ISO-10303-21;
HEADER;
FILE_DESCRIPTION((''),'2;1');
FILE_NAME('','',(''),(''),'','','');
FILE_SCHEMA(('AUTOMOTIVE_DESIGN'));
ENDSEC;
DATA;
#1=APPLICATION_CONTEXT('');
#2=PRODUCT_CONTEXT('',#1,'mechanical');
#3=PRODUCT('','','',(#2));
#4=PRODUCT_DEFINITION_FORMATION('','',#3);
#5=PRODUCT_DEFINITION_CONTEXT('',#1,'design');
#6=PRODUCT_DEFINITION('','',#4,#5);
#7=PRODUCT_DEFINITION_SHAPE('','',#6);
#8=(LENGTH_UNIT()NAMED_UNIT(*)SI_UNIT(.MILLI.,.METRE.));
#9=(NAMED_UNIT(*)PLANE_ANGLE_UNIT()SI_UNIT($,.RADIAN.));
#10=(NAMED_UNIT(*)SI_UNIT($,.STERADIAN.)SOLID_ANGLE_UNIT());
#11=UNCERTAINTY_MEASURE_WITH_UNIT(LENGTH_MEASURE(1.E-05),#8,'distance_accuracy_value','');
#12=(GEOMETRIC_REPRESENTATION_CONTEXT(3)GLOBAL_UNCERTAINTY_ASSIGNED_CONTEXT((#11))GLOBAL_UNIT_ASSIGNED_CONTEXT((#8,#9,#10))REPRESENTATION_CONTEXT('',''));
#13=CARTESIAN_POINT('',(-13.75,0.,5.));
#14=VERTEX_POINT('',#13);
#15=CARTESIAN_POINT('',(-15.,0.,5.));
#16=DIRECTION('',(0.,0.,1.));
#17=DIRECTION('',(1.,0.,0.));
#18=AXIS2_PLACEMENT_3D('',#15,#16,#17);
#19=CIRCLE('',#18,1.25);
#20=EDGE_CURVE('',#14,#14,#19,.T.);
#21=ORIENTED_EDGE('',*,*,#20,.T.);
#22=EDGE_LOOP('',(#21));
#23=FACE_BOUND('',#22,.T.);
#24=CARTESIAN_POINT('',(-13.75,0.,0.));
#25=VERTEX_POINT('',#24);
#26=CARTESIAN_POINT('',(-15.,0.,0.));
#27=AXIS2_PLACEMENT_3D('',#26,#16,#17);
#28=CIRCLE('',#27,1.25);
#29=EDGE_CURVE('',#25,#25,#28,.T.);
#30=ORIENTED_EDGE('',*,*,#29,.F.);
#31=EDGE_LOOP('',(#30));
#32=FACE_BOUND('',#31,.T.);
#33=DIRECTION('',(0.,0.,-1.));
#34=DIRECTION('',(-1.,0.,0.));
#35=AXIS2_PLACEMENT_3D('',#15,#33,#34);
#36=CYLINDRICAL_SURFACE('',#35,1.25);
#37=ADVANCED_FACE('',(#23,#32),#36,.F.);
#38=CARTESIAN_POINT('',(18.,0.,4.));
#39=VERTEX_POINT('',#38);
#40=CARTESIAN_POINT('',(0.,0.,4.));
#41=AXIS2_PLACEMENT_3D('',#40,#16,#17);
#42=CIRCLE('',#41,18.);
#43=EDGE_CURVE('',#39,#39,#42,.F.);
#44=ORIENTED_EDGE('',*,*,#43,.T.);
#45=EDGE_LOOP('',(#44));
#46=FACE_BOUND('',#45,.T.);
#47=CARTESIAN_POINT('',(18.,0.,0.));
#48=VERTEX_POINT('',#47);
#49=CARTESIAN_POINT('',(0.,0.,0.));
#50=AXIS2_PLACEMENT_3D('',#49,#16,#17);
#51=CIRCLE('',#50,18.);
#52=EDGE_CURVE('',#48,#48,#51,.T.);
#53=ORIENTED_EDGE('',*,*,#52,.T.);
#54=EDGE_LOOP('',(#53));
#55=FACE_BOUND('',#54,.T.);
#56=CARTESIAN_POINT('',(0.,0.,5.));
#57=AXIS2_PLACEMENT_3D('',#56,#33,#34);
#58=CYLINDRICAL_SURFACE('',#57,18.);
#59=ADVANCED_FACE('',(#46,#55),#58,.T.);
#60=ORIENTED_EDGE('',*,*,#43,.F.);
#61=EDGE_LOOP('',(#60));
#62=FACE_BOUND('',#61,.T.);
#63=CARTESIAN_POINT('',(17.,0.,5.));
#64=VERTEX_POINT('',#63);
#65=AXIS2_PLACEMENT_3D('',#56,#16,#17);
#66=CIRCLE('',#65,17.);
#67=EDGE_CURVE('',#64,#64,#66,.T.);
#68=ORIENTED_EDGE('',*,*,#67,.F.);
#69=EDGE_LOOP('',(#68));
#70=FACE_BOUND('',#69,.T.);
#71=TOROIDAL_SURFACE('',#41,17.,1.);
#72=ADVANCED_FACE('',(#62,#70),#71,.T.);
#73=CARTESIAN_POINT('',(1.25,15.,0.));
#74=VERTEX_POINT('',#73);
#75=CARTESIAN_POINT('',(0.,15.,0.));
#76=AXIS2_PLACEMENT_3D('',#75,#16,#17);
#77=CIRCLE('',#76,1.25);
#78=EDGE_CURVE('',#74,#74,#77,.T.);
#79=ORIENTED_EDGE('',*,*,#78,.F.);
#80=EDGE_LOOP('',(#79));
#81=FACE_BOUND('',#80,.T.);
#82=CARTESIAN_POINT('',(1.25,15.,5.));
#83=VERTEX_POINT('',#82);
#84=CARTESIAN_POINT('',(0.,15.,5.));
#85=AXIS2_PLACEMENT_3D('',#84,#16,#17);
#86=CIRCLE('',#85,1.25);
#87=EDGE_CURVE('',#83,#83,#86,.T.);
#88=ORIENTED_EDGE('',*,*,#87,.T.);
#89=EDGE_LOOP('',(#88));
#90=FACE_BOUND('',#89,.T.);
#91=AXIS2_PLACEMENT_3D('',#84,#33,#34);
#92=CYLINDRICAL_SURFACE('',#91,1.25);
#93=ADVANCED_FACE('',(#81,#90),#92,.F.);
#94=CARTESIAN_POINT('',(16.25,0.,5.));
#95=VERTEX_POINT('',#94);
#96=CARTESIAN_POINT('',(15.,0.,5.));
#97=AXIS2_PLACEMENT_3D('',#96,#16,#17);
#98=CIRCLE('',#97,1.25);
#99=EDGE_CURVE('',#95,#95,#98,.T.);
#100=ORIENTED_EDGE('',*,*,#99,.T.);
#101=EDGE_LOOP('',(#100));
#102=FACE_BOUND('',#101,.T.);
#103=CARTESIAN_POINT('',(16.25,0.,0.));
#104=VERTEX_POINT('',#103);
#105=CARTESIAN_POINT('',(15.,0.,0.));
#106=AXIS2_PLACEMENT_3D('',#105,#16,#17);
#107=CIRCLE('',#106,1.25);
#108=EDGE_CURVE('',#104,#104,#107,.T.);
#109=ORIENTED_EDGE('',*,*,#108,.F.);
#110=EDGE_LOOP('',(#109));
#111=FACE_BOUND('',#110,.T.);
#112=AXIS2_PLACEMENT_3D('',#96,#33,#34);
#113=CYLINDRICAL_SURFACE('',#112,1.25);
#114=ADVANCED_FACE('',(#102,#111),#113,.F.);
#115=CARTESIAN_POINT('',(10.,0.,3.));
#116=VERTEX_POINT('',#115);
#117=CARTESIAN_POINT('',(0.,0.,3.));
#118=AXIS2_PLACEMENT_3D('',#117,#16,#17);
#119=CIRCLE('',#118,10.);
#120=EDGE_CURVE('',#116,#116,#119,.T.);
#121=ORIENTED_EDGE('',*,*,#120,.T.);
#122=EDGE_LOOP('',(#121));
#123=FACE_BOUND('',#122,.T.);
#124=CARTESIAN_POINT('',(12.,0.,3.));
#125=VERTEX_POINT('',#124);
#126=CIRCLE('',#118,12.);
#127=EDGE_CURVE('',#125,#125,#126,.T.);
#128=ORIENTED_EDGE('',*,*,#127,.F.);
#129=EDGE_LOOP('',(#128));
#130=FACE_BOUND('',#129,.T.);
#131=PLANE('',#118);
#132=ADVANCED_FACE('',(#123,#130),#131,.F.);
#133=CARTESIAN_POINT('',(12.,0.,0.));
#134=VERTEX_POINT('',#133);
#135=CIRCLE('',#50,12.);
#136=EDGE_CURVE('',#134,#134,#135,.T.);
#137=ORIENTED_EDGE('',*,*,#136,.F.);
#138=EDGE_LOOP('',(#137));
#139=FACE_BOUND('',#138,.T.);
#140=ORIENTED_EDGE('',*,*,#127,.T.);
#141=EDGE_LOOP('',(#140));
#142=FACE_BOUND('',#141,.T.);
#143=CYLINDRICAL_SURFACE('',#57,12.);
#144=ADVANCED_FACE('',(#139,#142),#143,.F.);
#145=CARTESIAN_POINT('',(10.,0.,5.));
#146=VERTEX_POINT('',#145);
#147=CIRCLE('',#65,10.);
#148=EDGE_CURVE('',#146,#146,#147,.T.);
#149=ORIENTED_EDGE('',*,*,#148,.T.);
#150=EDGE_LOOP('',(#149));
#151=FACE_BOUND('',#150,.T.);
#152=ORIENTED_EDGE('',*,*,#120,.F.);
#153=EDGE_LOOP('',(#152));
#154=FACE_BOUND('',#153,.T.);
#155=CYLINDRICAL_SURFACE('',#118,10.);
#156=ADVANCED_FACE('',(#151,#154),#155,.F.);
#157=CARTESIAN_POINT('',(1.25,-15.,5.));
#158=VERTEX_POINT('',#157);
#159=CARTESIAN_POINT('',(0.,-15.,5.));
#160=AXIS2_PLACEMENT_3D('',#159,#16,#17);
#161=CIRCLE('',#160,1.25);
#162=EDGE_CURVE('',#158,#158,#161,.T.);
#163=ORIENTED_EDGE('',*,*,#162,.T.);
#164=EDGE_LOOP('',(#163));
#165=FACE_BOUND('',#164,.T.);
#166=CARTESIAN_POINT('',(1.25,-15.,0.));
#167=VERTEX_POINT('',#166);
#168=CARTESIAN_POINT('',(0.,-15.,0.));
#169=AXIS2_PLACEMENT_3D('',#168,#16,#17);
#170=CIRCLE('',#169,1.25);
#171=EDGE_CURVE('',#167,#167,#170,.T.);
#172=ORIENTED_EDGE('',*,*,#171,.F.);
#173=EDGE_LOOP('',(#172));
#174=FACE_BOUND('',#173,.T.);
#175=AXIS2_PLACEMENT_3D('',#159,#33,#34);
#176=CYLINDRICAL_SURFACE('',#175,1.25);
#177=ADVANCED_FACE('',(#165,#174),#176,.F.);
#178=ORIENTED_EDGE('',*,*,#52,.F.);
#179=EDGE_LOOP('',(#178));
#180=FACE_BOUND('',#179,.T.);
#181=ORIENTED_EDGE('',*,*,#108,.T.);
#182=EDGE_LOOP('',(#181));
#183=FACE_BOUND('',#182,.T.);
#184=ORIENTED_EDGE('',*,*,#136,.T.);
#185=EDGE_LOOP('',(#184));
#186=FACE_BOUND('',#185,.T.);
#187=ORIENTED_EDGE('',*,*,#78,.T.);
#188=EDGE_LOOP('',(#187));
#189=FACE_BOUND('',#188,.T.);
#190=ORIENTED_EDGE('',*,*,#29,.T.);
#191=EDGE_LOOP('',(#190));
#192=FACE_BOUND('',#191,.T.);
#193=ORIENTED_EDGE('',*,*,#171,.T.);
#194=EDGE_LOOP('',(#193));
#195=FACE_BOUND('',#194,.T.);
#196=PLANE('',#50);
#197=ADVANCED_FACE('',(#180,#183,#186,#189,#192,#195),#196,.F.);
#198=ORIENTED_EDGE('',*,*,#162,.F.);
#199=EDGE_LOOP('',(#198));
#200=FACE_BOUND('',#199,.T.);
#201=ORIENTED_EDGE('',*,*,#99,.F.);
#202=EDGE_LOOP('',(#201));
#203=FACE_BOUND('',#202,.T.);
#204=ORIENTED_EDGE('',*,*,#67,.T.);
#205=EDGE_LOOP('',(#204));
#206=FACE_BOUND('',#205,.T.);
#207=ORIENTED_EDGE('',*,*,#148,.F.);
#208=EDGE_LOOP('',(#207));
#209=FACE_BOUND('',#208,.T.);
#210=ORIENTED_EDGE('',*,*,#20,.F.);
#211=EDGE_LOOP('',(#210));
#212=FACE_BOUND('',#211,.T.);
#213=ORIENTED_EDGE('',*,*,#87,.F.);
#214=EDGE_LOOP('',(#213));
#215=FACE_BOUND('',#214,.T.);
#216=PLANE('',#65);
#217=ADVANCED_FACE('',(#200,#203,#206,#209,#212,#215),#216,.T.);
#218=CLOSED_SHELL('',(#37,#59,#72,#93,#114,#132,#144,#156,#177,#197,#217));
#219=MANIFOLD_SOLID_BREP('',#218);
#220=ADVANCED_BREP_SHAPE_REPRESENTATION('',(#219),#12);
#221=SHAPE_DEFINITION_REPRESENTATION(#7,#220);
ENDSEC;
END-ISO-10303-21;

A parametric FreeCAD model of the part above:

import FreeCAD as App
import Part
import Sketcher


def edges_at(feature, points):
    """Names of the edges that pass closest to the given points."""
    edges = feature.Shape.Edges
    near = lambda p: min(range(len(edges)), key=lambda i: edges[i].distToShape(Part.Vertex(*p))[0])
    return sorted({f"Edge{near(p) + 1}" for p in points})

doc = App.newDocument("Part")
body = doc.addObject("PartDesign::Body", "Body")

# Sketch on XY plane
sketch1 = body.newObject("Sketcher::SketchObject", "Sketch")
sketch1.AttachmentSupport = (doc.getObject("XY_Plane"), [""])
sketch1.MapMode = "FlatFace"
sketch1.addGeometry(Part.Circle(App.Vector(0, 0, 0), App.Vector(0, 0, 1), 18), False)
sketch1.addGeometry(Part.Circle(App.Vector(0, -15, 0), App.Vector(0, 0, 1), 1.2), False)
sketch1.addGeometry(Part.Circle(App.Vector(-15, 0, 0), App.Vector(0, 0, 1), 1.2), False)
sketch1.addGeometry(Part.Circle(App.Vector(0, 0, 0), App.Vector(0, 0, 1), 12), False)
sketch1.addGeometry(Part.Circle(App.Vector(15, 0, 0), App.Vector(0, 0, 1), 1.2), False)
sketch1.addGeometry(Part.Circle(App.Vector(0, 15, 0), App.Vector(0, 0, 1), 1.2), False)
sketch1.addConstraint(Sketcher.Constraint("Coincident", 0, 3, -1, 1))
sketch1.addConstraint(Sketcher.Constraint("Coincident", 3, 3, -1, 1))
sketch1.addConstraint(Sketcher.Constraint("Equal", 1, 2))
sketch1.addConstraint(Sketcher.Constraint("Equal", 2, 4))
sketch1.addConstraint(Sketcher.Constraint("Equal", 4, 5))
sketch1.addConstraint(Sketcher.Constraint("Symmetric", 2, 3, 4, 3, -1, 1))
sketch1.addConstraint(Sketcher.Constraint("Symmetric", 1, 3, 5, 3, -1, 1))
sketch1.addConstraint(Sketcher.Constraint("PointOnObject", 1, 3, -2))
sketch1.addConstraint(Sketcher.Constraint("PointOnObject", 2, 3, -1))
sketch1.addConstraint(Sketcher.Constraint("Diameter", 0, 36.0))
sketch1.addConstraint(Sketcher.Constraint("Diameter", 3, 24.0))
sketch1.addConstraint(Sketcher.Constraint("Diameter", 1, 2.5))
sketch1.addConstraint(Sketcher.Constraint("DistanceY", 1, 3, -1, 1, 15.0))
sketch1.addConstraint(Sketcher.Constraint("DistanceX", 2, 3, -1, 1, 15.0))
pad1 = body.newObject("PartDesign::Pad", "Pad")
pad1.Profile = sketch1
pad1.Length = 5

# Sketch on XY plane
sketch2 = body.newObject("Sketcher::SketchObject", "Sketch001")
sketch2.AttachmentSupport = (doc.getObject("XY_Plane"), [""])
sketch2.MapMode = "FlatFace"
sketch2.AttachmentOffset = App.Placement(App.Vector(0, 0, 3), App.Rotation())
sketch2.addGeometry(Part.Circle(App.Vector(0, 0, 0), App.Vector(0, 0, 1), 12), False)
sketch2.addGeometry(Part.Circle(App.Vector(0, 0, 0), App.Vector(0, 0, 1), 10), False)
sketch2.addConstraint(Sketcher.Constraint("Coincident", 0, 3, -1, 1))
sketch2.addConstraint(Sketcher.Constraint("Coincident", 1, 3, -1, 1))
sketch2.addConstraint(Sketcher.Constraint("Diameter", 0, 24.0))
sketch2.addConstraint(Sketcher.Constraint("Diameter", 1, 20.0))
pad2 = body.newObject("PartDesign::Pad", "Pad001")
pad2.Profile = sketch2
pad2.Length = 2
doc.recompute()

fillet = body.newObject("PartDesign::Fillet", "Fillet")
fillet.Base = (pad2, edges_at(pad2, [(-18, 0, 5)]))
fillet.Radius = 1

doc.recompute()
